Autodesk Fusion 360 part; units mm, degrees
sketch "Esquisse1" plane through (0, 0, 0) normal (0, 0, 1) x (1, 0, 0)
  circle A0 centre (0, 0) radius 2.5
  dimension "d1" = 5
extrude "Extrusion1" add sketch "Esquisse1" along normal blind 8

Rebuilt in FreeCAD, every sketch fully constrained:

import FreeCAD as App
import Part
import Sketcher

V = App.Vector

doc = App.newDocument("Part")
body = doc.addObject("PartDesign::Body", "Body")

sketch1 = doc.addObject("Sketcher::SketchObject", "Sketch")
body.addObject(sketch1)
sketch1.AttachmentSupport = (doc.XY_Plane, [""])
sketch1.MapMode = "FlatFace"
sketch1.addGeometry(Part.Circle(V(0, 0, 0), V(0, 0, 1), 2.5), False)
sketch1.addConstraint([
    Sketcher.Constraint("Coincident", 0, 3, -1, 1),
    Sketcher.Constraint("Diameter", 0, 5.0),
])
pad1 = doc.addObject("PartDesign::Pad", "Pad")
body.addObject(pad1)
pad1.Profile = sketch1
pad1.Length = 8

doc.recompute()
